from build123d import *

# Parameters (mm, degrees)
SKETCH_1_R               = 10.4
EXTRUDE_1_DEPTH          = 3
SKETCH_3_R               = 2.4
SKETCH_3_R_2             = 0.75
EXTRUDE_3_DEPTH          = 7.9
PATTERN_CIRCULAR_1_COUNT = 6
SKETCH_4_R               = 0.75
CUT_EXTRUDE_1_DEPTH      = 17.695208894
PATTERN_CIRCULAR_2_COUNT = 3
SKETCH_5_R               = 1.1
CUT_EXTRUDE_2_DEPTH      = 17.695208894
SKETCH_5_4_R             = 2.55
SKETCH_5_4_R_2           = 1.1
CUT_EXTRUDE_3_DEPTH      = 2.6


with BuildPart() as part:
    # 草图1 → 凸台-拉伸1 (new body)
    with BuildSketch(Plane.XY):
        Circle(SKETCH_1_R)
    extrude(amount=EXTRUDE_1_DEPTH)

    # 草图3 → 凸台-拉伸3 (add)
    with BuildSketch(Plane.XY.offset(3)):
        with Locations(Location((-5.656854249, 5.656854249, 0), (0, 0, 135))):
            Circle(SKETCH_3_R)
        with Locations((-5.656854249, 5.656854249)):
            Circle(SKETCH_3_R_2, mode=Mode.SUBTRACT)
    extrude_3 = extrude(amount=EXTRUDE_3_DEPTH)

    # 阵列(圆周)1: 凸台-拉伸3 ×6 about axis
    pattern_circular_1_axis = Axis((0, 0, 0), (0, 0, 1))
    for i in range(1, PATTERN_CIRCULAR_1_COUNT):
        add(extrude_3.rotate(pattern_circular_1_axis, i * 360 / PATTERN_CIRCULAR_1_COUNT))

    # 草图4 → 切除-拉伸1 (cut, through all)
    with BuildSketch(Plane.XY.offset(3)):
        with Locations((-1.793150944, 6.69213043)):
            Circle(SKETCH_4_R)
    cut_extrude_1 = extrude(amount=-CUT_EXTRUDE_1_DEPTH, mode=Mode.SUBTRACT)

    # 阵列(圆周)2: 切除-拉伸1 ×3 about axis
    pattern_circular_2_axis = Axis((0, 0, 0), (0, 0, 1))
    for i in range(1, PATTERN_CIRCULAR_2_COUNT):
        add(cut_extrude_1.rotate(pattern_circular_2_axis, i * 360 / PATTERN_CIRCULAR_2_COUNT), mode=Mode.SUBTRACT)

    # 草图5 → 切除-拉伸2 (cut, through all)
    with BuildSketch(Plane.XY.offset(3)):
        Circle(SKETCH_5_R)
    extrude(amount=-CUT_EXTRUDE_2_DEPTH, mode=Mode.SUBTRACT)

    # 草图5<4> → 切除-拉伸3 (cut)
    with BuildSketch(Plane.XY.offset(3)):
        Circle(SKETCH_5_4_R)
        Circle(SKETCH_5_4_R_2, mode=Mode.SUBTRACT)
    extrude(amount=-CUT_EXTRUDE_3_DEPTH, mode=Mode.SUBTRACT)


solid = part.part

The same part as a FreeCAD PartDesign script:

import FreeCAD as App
import Part
import Sketcher
from FreeCAD import Vector

doc = App.newDocument("Part")
body = doc.addObject("PartDesign::Body", "Body")

# Sketch on XY plane
sketch1 = body.newObject("Sketcher::SketchObject", "Sketch")
sketch1.AttachmentSupport = (doc.getObject("XY_Plane"), [""])
sketch1.MapMode = "FlatFace"
sketch1.addGeometry(Part.Circle(Vector(0, 0, 0), Vector(0, 0, 1), 10.4), False)
sketch1.addConstraint([
    Sketcher.Constraint("Coincident", 0, 3, -1, 1),
    Sketcher.Constraint("Diameter", 0, 20.8),
])
pad1 = body.newObject("PartDesign::Pad", "Pad")
pad1.Profile = sketch1
pad1.Length = 3

# Sketch on XY plane
sketch2 = body.newObject("Sketcher::SketchObject", "Sketch001")
sketch2.AttachmentSupport = (doc.getObject("XY_Plane"), [""])
sketch2.MapMode = "FlatFace"
sketch2.AttachmentOffset = App.Placement(Vector(0, 0, 3), App.Rotation())
sketch2.addGeometry([
    Part.Circle(Vector(-5.656854, 5.656854, 0), Vector(0, 0, 1), 2.4),
    Part.Circle(Vector(-5.656854, 5.656854, 0), Vector(0, 0, 1), 0.75),
], False)
sketch2.addConstraint([
    Sketcher.Constraint("Coincident", 1, 3, 0, 3),
    Sketcher.Constraint("Diameter", 0, 4.8),
    Sketcher.Constraint("Diameter", 1, 1.5),
    Sketcher.Constraint("DistanceX", 0, 3, -1, 1, 5.656854),
    Sketcher.Constraint("DistanceY", -1, 1, 0, 3, 5.656854),
])
pad2 = body.newObject("PartDesign::Pad", "Pad001")
pad2.Profile = sketch2
pad2.Length = 7.9
doc.recompute()

polarpattern = body.newObject("PartDesign::PolarPattern", "PolarPattern")
polarpattern.Originals = [pad2]
polarpattern.Axis = (doc.getObject("Z_Axis"), [""])
polarpattern.Angle = 360
polarpattern.Occurrences = 6
body.Tip = polarpattern

# Sketch on XY plane
sketch3 = body.newObject("Sketcher::SketchObject", "Sketch002")
sketch3.AttachmentSupport = (doc.getObject("XY_Plane"), [""])
sketch3.MapMode = "FlatFace"
sketch3.AttachmentOffset = App.Placement(Vector(0, 0, 3), App.Rotation())
sketch3.addGeometry(Part.Circle(Vector(-1.793151, 6.69213, 0), Vector(0, 0, 1), 0.75), False)
sketch3.addConstraint([
    Sketcher.Constraint("Diameter", 0, 1.5),
    Sketcher.Constraint("DistanceX", 0, 3, -1, 1, 1.793151),
    Sketcher.Constraint("DistanceY", -1, 1, 0, 3, 6.69213),
])
pocket1 = body.newObject("PartDesign::Pocket", "Pocket")
pocket1.Profile = sketch3
pocket1.Type = "ThroughAll"
doc.recompute()

polarpattern2 = body.newObject("PartDesign::PolarPattern", "PolarPattern001")
polarpattern2.Originals = [pocket1]
polarpattern2.Axis = (doc.getObject("Z_Axis"), [""])
polarpattern2.Angle = 360
polarpattern2.Occurrences = 3
body.Tip = polarpattern2

# Sketch on XY plane
sketch4 = body.newObject("Sketcher::SketchObject", "Sketch003")
sketch4.AttachmentSupport = (doc.getObject("XY_Plane"), [""])
sketch4.MapMode = "FlatFace"
sketch4.AttachmentOffset = App.Placement(Vector(0, 0, 3), App.Rotation())
sketch4.addGeometry(Part.Circle(Vector(0, 0, 0), Vector(0, 0, 1), 1.1), False)
sketch4.addConstraint([
    Sketcher.Constraint("Coincident", 0, 3, -1, 1),
    Sketcher.Constraint("Diameter", 0, 2.2),
])
pocket2 = body.newObject("PartDesign::Pocket", "Pocket001")
pocket2.Profile = sketch4
pocket2.Type = "ThroughAll"

# Sketch on XY plane
sketch5 = body.newObject("Sketcher::SketchObject", "Sketch004")
sketch5.AttachmentSupport = (doc.getObject("XY_Plane"), [""])
sketch5.MapMode = "FlatFace"
sketch5.AttachmentOffset = App.Placement(Vector(0, 0, 3), App.Rotation())
sketch5.addGeometry([
    Part.Circle(Vector(0, 0, 0), Vector(0, 0, 1), 2.55),
    Part.Circle(Vector(0, 0, 0), Vector(0, 0, 1), 1.1),
], False)
sketch5.addConstraint([
    Sketcher.Constraint("Coincident", 0, 3, -1, 1),
    Sketcher.Constraint("Coincident", 1, 3, -1, 1),
    Sketcher.Constraint("Diameter", 0, 5.1),
    Sketcher.Constraint("Diameter", 1, 2.2),
])
pocket3 = body.newObject("PartDesign::Pocket", "Pocket002")
pocket3.Profile = sketch5
pocket3.Length = 2.6

doc.recompute()
